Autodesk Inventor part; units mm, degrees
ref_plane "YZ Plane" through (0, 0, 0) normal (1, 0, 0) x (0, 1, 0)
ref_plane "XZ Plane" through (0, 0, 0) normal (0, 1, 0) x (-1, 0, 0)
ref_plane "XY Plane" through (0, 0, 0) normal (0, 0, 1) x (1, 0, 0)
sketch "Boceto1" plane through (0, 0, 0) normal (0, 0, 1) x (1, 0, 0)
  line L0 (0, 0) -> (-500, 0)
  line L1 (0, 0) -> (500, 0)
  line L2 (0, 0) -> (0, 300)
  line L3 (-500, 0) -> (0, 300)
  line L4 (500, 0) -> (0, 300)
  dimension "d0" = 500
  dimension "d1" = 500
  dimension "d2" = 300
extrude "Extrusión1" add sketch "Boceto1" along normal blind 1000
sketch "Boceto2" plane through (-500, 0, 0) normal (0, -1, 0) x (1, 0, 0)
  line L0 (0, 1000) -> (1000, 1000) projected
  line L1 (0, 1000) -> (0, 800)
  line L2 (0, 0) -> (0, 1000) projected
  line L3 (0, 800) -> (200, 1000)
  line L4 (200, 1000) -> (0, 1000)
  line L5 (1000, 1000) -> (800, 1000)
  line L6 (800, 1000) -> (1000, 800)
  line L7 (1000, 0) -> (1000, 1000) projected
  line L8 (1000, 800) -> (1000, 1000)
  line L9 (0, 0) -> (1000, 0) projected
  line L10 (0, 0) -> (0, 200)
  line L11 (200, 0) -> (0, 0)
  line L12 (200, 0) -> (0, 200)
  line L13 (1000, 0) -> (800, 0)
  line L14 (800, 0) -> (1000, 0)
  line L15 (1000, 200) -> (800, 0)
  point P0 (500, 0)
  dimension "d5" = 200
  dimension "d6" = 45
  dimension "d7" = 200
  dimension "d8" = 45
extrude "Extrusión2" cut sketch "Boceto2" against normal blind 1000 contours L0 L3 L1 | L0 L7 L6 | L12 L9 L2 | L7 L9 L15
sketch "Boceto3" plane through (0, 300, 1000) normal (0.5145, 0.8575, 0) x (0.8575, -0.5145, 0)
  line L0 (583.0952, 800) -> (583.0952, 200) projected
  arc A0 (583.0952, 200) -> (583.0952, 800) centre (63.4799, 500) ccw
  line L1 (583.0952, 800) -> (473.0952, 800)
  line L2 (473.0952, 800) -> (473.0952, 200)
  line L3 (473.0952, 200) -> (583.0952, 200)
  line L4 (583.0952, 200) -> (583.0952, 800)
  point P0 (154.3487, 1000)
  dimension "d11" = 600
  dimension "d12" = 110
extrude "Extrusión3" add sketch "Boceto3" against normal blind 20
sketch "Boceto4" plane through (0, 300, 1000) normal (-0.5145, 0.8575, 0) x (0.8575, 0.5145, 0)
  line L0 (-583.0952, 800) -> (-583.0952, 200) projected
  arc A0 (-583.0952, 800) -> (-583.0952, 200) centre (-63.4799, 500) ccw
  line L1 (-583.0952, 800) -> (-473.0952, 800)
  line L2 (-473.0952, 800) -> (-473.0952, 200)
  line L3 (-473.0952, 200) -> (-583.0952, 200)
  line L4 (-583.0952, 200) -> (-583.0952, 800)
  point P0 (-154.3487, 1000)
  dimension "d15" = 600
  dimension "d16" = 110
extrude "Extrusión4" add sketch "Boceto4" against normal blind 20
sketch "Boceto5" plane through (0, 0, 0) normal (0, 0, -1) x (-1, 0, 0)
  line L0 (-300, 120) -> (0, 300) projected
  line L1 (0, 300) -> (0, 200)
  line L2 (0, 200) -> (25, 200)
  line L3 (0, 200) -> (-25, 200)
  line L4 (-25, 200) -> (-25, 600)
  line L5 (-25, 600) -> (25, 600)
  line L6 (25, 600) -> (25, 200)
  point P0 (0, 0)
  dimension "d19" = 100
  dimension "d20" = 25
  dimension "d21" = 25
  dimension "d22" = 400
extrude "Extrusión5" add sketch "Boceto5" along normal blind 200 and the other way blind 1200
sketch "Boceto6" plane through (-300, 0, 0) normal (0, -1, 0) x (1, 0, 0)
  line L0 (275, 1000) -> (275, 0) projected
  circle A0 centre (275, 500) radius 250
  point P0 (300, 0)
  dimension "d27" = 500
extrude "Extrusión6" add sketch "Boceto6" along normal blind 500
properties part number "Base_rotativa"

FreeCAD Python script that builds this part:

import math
import FreeCAD as App
import Part
import Sketcher
from FreeCAD import Vector

doc = App.newDocument("Part")
params = doc.addObject("Spreadsheet::Sheet", "Params")
for row, (alias, value) in enumerate([
    ("pad1_length", "1000 mm"),
    ("sketch2_width", "200 mm"),
    ("pocket1_length", "1000 mm"),
    ("sketch3_radius", "600 mm"),
    ("sketch3_width", "110 mm"),
    ("sketch3_height", "600 mm"),
    ("pad2_length", "20 mm"),
    ("sketch4_radius", "600 mm"),
    ("sketch4_width", "110 mm"),
    ("sketch4_height", "600 mm"),
    ("pad3_length", "20 mm"),
    ("sketch5_height", "400 mm"),
    ("pad4_length", "200 mm"),
    ("pad4_length2", "1200 mm"),
    ("sketch6_diameter", "500 mm"),
    ("pad5_length", "500 mm"),
], start=1):
    params.set(f"A{row}", alias)
    params.set(f"B{row}", "=" + value)
    params.setAlias(f"B{row}", alias)

body = doc.addObject("PartDesign::Body", "Body")

sketch1 = doc.addObject("Sketcher::SketchObject", "Sketch")
body.addObject(sketch1)
sketch1.AttachmentSupport = (doc.XY_Plane, [""])
sketch1.MapMode = "FlatFace"
sketch1.addGeometry([
    Part.LineSegment(Vector(500, 0, 0), Vector(0, 300, 0)),
    Part.LineSegment(Vector(0, 300, 0), Vector(-500, 0, 0)),
    Part.LineSegment(Vector(-500, 0, 0), Vector(500, 0, 0)),
], False)
sketch1.addConstraint([
    Sketcher.Constraint("Coincident", 0, 2, 1, 1),
    Sketcher.Constraint("Coincident", 1, 2, 2, 1),
    Sketcher.Constraint("Coincident", 2, 2, 0, 1),
    Sketcher.Constraint("Horizontal", 2),
    Sketcher.Constraint("Symmetric", 1, 2, 2, 2, -1, 1),
    Sketcher.Constraint("PointOnObject", 0, 2, -2),
    Sketcher.Constraint("DistanceY", -1, 1, 0, 2, 300.0),
    Sketcher.Constraint("DistanceX", 1, 2, -1, 1, 500.0),
])
pad1 = doc.addObject("PartDesign::Pad", "Pad")
body.addObject(pad1)
pad1.Profile = sketch1
pad1.setExpression("Length", "Params.pad1_length")

sketch2 = doc.addObject("Sketcher::SketchObject", "Sketch001")
body.addObject(sketch2)
sketch2.AttachmentSupport = (doc.XZ_Plane, [""])
sketch2.MapMode = "FlatFace"
sketch2.addGeometry([
    Part.LineSegment(Vector(-300, 1000, 0), Vector(-500, 1000, 0)),
    Part.LineSegment(Vector(-500, 1000, 0), Vector(-500, 800, 0)),
    Part.LineSegment(Vector(-500, 800, 0), Vector(-300, 1000, 0)),
    Part.LineSegment(Vector(500, 1000, 0), Vector(300, 1000, 0)),
    Part.LineSegment(Vector(300, 1000, 0), Vector(500, 800, 0)),
    Part.LineSegment(Vector(500, 800, 0), Vector(500, 1000, 0)),
    Part.LineSegment(Vector(-300, 0, 0), Vector(-500, 200, 0)),
    Part.LineSegment(Vector(-500, 200, 0), Vector(-500, 0, 0)),
    Part.LineSegment(Vector(-500, 0, 0), Vector(-300, 0, 0)),
    Part.LineSegment(Vector(500, 0, 0), Vector(500, 200, 0)),
    Part.LineSegment(Vector(500, 200, 0), Vector(300, 0, 0)),
    Part.LineSegment(Vector(300, 0, 0), Vector(500, 0, 0)),
], False)
sketch2.addConstraint([
    Sketcher.Constraint("Coincident", 0, 2, 1, 1),
    Sketcher.Constraint("Coincident", 1, 2, 2, 1),
    Sketcher.Constraint("Coincident", 2, 2, 0, 1),
    Sketcher.Constraint("Coincident", 3, 2, 4, 1),
    Sketcher.Constraint("Coincident", 4, 2, 5, 1),
    Sketcher.Constraint("Coincident", 5, 2, 3, 1),
    Sketcher.Constraint("Coincident", 6, 2, 7, 1),
    Sketcher.Constraint("Coincident", 7, 2, 8, 1),
    Sketcher.Constraint("Coincident", 8, 2, 6, 1),
    Sketcher.Constraint("Coincident", 9, 2, 10, 1),
    Sketcher.Constraint("Coincident", 10, 2, 11, 1),
    Sketcher.Constraint("Coincident", 11, 2, 9, 1),
    Sketcher.Constraint("Horizontal", 0),
    Sketcher.Constraint("Vertical", 1),
    Sketcher.Constraint("Horizontal", 3),
    Sketcher.Constraint("Vertical", 5),
    Sketcher.Constraint("Vertical", 7),
    Sketcher.Constraint("Horizontal", 8),
    Sketcher.Constraint("Vertical", 9),
    Sketcher.Constraint("Horizontal", 11),
    Sketcher.Constraint("Symmetric", 8, 2, 10, 2, -1, 1),
    Sketcher.Constraint("Symmetric", 2, 2, 3, 2, -2),
    Sketcher.Constraint("Symmetric", 1, 2, 4, 2, -2),
    Sketcher.Constraint("Symmetric", 6, 2, 9, 2, -2),
    Sketcher.Constraint("PointOnObject", 7, 2, -1),
    Sketcher.Constraint("Perpendicular", 2, 4),
    Sketcher.Constraint("Parallel", 4, 6),
    Sketcher.Constraint("Vertical", 1, 2, 6, 2),
    Sketcher.Constraint("Vertical", 2, 2, 8, 2),
    Sketcher.Constraint("DistanceX", 0, 2, 0, 1, 200.0),
    Sketcher.Constraint("DistanceX", 0, 2, -1, 1, 500.0),
    Sketcher.Constraint("DistanceY", -1, 1, 0, 2, 1000.0),
])
sketch2.setExpression("Constraints[29]", "Params.sketch2_width")
pocket1 = doc.addObject("PartDesign::Pocket", "Pocket")
body.addObject(pocket1)
pocket1.Profile = sketch2
pocket1.setExpression("Length", "Params.pocket1_length")

sketch3 = doc.addObject("Sketcher::SketchObject", "Sketch002")
body.addObject(sketch3)
sketch3.Placement = App.Placement(Vector(0, 300, 1000), App.Rotation(Vector(0.857492926, -0.514495755, 0), Vector(0, 0, -1), Vector(0.514495755, 0.857492926, 0), "ZXY"))
sketch3.addGeometry([
    Part.ArcOfCircle(Part.Circle(Vector(63, 500, 0), Vector(0, 0, 1), 600), math.radians(-30), math.radians(30)),
    Part.LineSegment(Vector(583, 800, 0), Vector(473, 800, 0)),
    Part.LineSegment(Vector(473, 800, 0), Vector(473, 200, 0)),
    Part.LineSegment(Vector(473, 200, 0), Vector(583, 200, 0)),
], False)
sketch3.addConstraint([
    Sketcher.Constraint("Coincident", 0, 2, 1, 1),
    Sketcher.Constraint("Coincident", 1, 2, 2, 1),
    Sketcher.Constraint("Coincident", 2, 2, 3, 1),
    Sketcher.Constraint("Coincident", 3, 2, 0, 1),
    Sketcher.Constraint("Horizontal", 1),
    Sketcher.Constraint("Vertical", 2),
    Sketcher.Constraint("Horizontal", 3),
    Sketcher.Constraint("Vertical", 0, 2, 3, 2),
    Sketcher.Constraint("Radius", 0, 600.0),
    Sketcher.Constraint("DistanceX", 1, 2, 1, 1, 110.0),
    Sketcher.Constraint("DistanceY", 2, 2, 2, 1, 600.0),
    Sketcher.Constraint("DistanceY", -1, 1, 0, 3, 500.0),
    Sketcher.Constraint("DistanceX", -1, 1, 0, 3, 63.48),
])
sketch3.setExpression("Constraints[8]", "Params.sketch3_radius")
sketch3.setExpression("Constraints[9]", "Params.sketch3_width")
sketch3.setExpression("Constraints[10]", "Params.sketch3_height")
pad2 = doc.addObject("PartDesign::Pad", "Pad001")
body.addObject(pad2)
pad2.Profile = sketch3
pad2.setExpression("Length", "Params.pad2_length")
pad2.Reversed = True

sketch4 = doc.addObject("Sketcher::SketchObject", "Sketch003")
body.addObject(sketch4)
sketch4.Placement = App.Placement(Vector(0, 300, 1000), App.Rotation(Vector(0.857492926, 0.514495755, 0), Vector(0, 0, -1), Vector(-0.514495755, 0.857492926, 0), "ZXY"))
sketch4.addGeometry([
    Part.LineSegment(Vector(-473, 800, 0), Vector(-583, 800, 0)),
    Part.ArcOfCircle(Part.Circle(Vector(-63, 500, 0), Vector(0, 0, 1), 600), math.radians(150), math.radians(210)),
    Part.LineSegment(Vector(-583, 200, 0), Vector(-473, 200, 0)),
    Part.LineSegment(Vector(-473, 200, 0), Vector(-473, 800, 0)),
], False)
sketch4.addConstraint([
    Sketcher.Constraint("Coincident", 0, 2, 1, 1),
    Sketcher.Constraint("Coincident", 1, 2, 2, 1),
    Sketcher.Constraint("Coincident", 2, 2, 3, 1),
    Sketcher.Constraint("Coincident", 3, 2, 0, 1),
    Sketcher.Constraint("Horizontal", 0),
    Sketcher.Constraint("Horizontal", 2),
    Sketcher.Constraint("Vertical", 3),
    Sketcher.Constraint("Vertical", 0, 2, 1, 2),
    Sketcher.Constraint("Radius", 1, 600.0),
    Sketcher.Constraint("DistanceX", 0, 2, 0, 1, 110.0),
    Sketcher.Constraint("DistanceY", 3, 1, 3, 2, 600.0),
    Sketcher.Constraint("DistanceY", -1, 1, 1, 3, 500.0),
    Sketcher.Constraint("DistanceX", 1, 3, -1, 1, 63.48),
])
sketch4.setExpression("Constraints[8]", "Params.sketch4_radius")
sketch4.setExpression("Constraints[9]", "Params.sketch4_width")
sketch4.setExpression("Constraints[10]", "Params.sketch4_height")
pad3 = doc.addObject("PartDesign::Pad", "Pad002")
body.addObject(pad3)
pad3.Profile = sketch4
pad3.setExpression("Length", "Params.pad3_length")
pad3.Reversed = True

sketch5 = doc.addObject("Sketcher::SketchObject", "Sketch004")
body.addObject(sketch5)
sketch5.AttachmentSupport = (doc.XY_Plane, [""])
sketch5.MapMode = "FlatFace"
sketch5.addGeometry([
    Part.LineSegment(Vector(25, 600, 0), Vector(25, 200, 0)),
    Part.LineSegment(Vector(25, 200, 0), Vector(-25, 200, 0)),
    Part.LineSegment(Vector(-25, 200, 0), Vector(-25, 600, 0)),
    Part.LineSegment(Vector(-25, 600, 0), Vector(25, 600, 0)),
], False)
sketch5.addConstraint([
    Sketcher.Constraint("Coincident", 0, 2, 1, 1),
    Sketcher.Constraint("Coincident", 1, 2, 2, 1),
    Sketcher.Constraint("Coincident", 2, 2, 3, 1),
    Sketcher.Constraint("Coincident", 3, 2, 0, 1),
    Sketcher.Constraint("Vertical", 0),
    Sketcher.Constraint("Horizontal", 1),
    Sketcher.Constraint("Vertical", 2),
    Sketcher.Constraint("Horizontal", 3),
    Sketcher.Constraint("DistanceY", 0, 2, 0, 1, 400.0),
    Sketcher.Constraint("DistanceX", -1, 1, 0, 2, 25.0),
    Sketcher.Constraint("DistanceX", 1, 2, -1, 1, 25.0),
    Sketcher.Constraint("DistanceY", -1, 1, 0, 2, 200.0),
])
sketch5.setExpression("Constraints[8]", "Params.sketch5_height")
pad4 = doc.addObject("PartDesign::Pad", "Pad003")
body.addObject(pad4)
pad4.Profile = sketch5
pad4.Type = "TwoLengths"
pad4.setExpression("Length", "Params.pad4_length")
pad4.setExpression("Length2", "Params.pad4_length2")
pad4.Reversed = True

sketch6 = doc.addObject("Sketcher::SketchObject", "Sketch005")
body.addObject(sketch6)
sketch6.AttachmentSupport = (doc.XZ_Plane, [""])
sketch6.MapMode = "FlatFace"
sketch6.addGeometry(Part.Circle(Vector(-25, 500, 0), Vector(0, 0, 1), 250), False)
sketch6.addConstraint([
    Sketcher.Constraint("Diameter", 0, 500.0),
    Sketcher.Constraint("DistanceY", -1, 1, 0, 3, 500.0),
    Sketcher.Constraint("DistanceX", 0, 3, -1, 1, 25.0),
])
sketch6.setExpression("Constraints[0]", "Params.sketch6_diameter")
pad5 = doc.addObject("PartDesign::Pad", "Pad004")
body.addObject(pad5)
pad5.Profile = sketch6
pad5.setExpression("Length", "Params.pad5_length")

doc.recompute()
